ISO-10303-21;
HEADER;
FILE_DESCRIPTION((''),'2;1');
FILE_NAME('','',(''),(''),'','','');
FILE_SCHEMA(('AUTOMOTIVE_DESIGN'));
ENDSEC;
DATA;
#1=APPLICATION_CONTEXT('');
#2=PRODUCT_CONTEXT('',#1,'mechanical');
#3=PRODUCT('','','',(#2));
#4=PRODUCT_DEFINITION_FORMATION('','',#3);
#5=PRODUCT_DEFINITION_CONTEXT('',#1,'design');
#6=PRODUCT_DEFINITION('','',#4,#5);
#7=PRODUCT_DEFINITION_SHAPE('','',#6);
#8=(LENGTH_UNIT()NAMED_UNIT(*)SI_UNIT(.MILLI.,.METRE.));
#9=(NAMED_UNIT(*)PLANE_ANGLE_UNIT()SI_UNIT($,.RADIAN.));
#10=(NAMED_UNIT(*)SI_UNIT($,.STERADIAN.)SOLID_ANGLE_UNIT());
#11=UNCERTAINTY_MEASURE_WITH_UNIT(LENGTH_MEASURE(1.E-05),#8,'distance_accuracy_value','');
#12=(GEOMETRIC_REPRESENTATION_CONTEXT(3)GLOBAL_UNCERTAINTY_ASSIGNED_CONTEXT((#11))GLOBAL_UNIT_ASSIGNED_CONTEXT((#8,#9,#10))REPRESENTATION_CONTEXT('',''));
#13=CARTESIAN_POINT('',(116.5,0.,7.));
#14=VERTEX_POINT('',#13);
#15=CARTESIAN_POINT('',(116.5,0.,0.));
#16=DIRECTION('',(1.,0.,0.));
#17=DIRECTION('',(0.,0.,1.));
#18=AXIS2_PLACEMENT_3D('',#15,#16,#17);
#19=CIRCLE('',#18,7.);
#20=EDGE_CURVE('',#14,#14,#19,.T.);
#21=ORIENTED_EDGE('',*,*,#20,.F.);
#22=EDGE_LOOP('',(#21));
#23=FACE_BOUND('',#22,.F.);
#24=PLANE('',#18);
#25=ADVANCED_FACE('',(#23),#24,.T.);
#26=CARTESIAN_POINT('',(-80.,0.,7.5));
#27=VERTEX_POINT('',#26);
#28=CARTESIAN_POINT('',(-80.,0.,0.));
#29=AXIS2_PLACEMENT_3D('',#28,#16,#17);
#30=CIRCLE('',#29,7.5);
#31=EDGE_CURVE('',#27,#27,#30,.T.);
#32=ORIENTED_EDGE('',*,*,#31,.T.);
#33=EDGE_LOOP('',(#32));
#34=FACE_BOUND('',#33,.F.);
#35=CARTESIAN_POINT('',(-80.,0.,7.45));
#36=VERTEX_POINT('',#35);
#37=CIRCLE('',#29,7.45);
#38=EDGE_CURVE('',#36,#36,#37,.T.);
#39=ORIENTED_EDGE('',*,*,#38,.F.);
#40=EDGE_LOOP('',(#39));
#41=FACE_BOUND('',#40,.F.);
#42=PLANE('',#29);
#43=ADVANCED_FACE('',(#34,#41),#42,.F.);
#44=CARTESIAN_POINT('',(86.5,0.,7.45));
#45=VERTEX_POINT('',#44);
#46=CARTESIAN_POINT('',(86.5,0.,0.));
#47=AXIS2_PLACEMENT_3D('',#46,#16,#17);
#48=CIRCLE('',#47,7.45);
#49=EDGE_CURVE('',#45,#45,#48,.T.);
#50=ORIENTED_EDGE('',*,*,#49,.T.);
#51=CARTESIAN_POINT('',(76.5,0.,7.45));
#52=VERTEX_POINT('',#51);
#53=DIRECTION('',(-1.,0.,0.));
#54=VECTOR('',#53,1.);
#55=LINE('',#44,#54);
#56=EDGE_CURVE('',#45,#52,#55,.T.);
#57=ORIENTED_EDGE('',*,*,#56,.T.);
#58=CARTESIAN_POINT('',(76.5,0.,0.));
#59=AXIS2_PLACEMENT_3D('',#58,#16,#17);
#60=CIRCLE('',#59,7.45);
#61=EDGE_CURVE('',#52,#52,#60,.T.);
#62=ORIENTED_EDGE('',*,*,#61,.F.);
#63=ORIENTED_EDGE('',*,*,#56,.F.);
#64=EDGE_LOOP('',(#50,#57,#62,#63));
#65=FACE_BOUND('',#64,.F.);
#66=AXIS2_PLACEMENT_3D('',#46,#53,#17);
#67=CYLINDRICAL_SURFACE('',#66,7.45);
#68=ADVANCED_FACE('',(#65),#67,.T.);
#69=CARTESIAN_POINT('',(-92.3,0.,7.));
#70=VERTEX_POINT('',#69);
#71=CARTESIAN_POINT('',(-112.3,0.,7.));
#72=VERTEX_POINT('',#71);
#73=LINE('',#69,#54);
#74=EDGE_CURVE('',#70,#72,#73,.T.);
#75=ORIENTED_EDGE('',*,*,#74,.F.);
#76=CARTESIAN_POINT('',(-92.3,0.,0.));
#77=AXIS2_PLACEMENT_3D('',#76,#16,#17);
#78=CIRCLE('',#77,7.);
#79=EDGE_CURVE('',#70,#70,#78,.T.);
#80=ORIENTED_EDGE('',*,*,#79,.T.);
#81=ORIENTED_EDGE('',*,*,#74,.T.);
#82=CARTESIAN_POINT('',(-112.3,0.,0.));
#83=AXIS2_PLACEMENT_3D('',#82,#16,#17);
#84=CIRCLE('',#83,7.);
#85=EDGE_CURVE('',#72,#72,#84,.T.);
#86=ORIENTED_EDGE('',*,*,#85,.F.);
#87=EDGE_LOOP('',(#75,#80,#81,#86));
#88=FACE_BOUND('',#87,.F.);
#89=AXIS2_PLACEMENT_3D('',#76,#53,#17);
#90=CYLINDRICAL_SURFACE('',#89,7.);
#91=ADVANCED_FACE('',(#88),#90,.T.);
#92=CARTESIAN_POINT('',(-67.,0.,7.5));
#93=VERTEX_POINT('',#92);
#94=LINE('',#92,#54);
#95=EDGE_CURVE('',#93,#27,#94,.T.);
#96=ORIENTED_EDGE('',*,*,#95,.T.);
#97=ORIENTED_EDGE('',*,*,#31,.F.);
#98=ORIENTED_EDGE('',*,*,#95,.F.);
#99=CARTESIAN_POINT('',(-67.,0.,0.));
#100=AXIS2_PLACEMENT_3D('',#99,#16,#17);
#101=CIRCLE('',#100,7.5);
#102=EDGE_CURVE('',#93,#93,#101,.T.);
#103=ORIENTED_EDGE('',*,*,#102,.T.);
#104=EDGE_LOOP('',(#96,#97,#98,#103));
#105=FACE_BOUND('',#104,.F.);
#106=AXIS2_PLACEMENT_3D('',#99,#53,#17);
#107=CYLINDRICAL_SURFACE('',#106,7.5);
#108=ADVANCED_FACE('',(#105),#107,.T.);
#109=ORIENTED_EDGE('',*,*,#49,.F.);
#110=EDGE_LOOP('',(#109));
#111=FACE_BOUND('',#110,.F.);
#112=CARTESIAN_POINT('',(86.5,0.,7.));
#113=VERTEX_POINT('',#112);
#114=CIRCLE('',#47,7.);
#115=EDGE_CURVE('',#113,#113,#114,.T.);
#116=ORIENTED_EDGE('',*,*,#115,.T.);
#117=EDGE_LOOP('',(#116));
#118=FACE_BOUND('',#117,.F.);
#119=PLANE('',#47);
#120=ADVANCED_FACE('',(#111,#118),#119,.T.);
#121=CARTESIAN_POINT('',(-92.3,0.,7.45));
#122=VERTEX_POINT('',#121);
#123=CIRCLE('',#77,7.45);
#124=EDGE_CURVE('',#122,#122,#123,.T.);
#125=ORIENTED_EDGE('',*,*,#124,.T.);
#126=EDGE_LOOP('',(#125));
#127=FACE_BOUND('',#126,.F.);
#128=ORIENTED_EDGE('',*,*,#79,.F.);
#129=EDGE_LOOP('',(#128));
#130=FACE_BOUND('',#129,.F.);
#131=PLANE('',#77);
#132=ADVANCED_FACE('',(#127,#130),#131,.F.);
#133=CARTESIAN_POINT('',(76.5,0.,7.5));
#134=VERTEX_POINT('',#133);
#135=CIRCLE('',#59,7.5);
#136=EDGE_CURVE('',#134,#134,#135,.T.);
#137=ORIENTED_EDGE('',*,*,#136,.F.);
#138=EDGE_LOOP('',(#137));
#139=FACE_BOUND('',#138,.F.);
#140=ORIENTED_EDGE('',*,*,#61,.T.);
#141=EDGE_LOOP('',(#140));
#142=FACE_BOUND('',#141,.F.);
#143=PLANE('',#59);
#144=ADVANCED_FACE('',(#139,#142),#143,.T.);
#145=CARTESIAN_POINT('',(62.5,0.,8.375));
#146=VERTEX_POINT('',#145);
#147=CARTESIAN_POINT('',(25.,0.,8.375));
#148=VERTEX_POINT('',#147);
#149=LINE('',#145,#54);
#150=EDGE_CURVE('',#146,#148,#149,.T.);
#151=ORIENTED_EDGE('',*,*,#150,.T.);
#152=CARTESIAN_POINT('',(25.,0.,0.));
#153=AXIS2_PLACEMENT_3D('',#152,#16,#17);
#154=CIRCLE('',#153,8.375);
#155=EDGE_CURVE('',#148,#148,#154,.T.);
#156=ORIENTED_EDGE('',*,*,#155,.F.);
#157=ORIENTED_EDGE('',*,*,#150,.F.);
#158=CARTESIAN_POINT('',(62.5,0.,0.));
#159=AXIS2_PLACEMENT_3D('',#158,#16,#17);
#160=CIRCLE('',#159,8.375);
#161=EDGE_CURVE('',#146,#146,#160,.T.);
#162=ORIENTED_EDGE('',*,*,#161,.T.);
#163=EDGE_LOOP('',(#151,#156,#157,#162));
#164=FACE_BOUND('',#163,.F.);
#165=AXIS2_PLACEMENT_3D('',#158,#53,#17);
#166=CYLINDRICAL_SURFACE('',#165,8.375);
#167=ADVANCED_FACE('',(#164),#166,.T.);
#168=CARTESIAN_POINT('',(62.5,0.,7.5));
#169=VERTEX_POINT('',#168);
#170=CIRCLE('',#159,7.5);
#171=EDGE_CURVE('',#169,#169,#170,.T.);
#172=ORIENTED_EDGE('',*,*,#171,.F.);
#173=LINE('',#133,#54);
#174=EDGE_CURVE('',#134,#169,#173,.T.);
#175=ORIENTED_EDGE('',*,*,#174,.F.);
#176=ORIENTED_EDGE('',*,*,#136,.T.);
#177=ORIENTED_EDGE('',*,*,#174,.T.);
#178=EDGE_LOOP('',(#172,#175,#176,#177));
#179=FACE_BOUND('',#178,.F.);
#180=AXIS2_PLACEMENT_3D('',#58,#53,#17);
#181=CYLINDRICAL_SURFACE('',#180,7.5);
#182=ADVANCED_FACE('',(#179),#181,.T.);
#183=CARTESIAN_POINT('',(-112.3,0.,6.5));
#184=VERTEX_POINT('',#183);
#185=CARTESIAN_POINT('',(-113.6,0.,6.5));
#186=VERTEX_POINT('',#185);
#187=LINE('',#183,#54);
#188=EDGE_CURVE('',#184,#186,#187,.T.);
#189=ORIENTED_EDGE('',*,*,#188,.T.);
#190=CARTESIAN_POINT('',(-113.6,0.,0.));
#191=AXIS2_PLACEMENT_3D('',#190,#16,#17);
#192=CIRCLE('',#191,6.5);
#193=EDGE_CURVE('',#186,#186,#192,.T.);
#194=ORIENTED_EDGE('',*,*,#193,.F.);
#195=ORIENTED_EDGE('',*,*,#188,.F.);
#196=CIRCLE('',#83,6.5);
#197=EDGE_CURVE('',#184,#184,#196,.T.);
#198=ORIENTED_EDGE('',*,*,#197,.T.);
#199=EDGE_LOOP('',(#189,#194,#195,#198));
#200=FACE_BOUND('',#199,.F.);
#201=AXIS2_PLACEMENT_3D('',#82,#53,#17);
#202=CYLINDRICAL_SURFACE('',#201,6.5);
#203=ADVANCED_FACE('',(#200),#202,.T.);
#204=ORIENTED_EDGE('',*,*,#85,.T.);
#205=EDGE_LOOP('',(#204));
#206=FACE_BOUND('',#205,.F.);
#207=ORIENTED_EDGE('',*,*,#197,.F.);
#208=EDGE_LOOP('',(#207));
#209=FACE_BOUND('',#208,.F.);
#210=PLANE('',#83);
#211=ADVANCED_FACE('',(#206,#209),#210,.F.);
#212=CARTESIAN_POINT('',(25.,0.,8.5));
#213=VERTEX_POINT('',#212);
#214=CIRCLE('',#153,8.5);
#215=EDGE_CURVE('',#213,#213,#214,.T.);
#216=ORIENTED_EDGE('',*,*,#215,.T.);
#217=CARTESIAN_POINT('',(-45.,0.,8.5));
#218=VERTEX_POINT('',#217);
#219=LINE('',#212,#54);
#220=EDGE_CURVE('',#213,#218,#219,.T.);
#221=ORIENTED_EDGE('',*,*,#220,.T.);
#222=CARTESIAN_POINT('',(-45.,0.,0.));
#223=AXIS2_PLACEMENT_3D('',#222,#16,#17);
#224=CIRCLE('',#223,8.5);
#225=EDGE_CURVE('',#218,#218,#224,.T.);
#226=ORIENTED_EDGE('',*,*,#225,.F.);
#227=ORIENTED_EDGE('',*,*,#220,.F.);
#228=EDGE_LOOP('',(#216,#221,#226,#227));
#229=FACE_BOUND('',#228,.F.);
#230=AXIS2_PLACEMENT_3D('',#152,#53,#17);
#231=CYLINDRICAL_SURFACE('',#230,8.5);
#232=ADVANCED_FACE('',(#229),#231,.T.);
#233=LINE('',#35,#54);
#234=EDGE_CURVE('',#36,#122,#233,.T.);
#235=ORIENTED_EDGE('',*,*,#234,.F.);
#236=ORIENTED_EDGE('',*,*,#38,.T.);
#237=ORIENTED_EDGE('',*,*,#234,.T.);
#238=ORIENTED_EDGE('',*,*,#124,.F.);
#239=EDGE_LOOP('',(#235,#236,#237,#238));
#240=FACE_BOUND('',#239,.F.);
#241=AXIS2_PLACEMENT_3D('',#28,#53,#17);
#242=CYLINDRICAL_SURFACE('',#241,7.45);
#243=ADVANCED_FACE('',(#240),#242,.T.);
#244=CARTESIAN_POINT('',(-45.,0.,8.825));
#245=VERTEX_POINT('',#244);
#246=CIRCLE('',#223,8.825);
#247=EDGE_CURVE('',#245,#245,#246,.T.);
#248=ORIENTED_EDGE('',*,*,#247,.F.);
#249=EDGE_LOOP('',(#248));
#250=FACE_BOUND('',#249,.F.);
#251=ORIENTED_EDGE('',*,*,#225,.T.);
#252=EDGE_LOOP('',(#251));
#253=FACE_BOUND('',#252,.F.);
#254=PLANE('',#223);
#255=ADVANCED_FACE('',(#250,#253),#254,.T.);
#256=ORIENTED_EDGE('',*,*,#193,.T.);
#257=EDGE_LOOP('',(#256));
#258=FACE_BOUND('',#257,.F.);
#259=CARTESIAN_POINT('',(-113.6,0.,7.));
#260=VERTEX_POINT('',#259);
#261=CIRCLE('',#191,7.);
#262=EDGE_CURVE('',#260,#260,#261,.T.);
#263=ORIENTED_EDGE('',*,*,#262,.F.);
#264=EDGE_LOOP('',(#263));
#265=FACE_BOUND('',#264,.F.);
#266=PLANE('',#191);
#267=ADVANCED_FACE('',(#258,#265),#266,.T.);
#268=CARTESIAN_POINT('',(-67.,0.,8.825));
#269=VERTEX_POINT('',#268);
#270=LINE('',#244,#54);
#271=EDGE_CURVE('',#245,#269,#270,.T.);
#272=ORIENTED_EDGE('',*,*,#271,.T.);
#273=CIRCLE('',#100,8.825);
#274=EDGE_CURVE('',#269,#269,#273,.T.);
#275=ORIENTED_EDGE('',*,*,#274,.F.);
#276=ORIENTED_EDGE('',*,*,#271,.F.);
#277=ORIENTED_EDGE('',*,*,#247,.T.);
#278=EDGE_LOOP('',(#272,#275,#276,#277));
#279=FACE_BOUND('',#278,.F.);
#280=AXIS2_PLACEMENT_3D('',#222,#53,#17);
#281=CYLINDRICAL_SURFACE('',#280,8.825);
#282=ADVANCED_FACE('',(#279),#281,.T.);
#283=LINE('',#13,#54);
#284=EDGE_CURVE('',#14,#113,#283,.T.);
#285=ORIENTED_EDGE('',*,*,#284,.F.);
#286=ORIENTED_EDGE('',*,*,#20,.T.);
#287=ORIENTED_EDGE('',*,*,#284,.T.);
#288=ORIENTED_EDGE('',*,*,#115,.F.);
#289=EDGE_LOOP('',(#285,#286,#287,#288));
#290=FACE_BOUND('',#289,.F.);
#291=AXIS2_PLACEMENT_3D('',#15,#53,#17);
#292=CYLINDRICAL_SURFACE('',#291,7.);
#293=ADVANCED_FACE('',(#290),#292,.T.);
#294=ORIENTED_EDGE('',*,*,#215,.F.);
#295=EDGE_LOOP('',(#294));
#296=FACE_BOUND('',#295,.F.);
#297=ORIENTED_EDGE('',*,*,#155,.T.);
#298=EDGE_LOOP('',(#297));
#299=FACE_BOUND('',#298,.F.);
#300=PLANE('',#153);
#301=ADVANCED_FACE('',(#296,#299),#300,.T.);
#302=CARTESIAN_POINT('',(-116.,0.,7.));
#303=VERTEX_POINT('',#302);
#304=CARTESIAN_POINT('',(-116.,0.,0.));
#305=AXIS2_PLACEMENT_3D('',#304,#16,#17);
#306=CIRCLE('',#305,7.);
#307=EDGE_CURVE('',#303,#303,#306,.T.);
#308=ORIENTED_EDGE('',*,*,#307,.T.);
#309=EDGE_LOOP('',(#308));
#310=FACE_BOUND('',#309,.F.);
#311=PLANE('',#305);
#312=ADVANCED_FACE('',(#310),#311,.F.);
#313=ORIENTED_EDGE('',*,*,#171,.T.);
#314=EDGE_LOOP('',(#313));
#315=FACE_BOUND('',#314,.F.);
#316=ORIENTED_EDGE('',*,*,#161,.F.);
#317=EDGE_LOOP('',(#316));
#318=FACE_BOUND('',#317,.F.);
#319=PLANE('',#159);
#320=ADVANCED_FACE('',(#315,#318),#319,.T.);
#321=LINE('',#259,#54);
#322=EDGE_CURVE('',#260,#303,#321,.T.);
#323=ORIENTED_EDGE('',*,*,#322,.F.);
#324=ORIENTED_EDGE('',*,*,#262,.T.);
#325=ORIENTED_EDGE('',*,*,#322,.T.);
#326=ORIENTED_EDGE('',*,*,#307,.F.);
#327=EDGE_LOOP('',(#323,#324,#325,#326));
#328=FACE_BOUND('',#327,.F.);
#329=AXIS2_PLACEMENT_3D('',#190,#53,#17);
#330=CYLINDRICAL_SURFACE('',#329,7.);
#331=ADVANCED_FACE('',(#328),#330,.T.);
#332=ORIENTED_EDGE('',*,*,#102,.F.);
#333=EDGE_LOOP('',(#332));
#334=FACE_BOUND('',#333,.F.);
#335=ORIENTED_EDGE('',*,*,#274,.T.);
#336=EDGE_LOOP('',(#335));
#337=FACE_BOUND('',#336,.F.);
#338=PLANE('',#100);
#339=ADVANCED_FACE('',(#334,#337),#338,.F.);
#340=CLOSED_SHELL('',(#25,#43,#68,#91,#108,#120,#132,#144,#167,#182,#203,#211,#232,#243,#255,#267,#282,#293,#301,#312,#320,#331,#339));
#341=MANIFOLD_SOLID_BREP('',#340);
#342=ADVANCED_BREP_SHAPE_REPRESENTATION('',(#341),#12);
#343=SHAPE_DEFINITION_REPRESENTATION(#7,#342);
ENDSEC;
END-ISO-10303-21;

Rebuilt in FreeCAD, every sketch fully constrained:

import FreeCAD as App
import Part
import Sketcher

V = App.Vector

doc = App.newDocument("Part")
params = doc.addObject("Spreadsheet::Sheet", "Params")
for row, (alias, value) in enumerate([
    ("sketch1_width", "30 mm"),
    ("sketch1_width2", "10 mm"),
    ("sketch1_width3", "14 mm"),
    ("sketch1_width4", "70 mm"),
    ("sketch1_width5", "22 mm"),
    ("revolution_angle", "360 deg"),
], start=1):
    params.set(f"A{row}", alias)
    params.set(f"B{row}", "=" + value)
    params.setAlias(f"B{row}", alias)

body = doc.addObject("PartDesign::Body", "Body")

# Sketch on XZ plane
sketch1 = body.newObject("Sketcher::SketchObject", "Sketch")
sketch1.AttachmentSupport = (doc.getObject("XZ_Plane"), [""])
sketch1.MapMode = "FlatFace"
sketch1.addGeometry([
    Part.LineSegment(V(-116, 7, 0), V(-116, 0, 0)),  # 0
    Part.LineSegment(V(-116, 0, 0), V(116.5, 0, 0)),  # 1
    Part.LineSegment(V(116.5, 0, 0), V(116.5, 7, 0)),  # 2
    Part.LineSegment(V(116.5, 7, 0), V(86.5, 7, 0)),  # 3
    Part.LineSegment(V(86.5, 7, 0), V(86.5, 7.45, 0)),  # 4
    Part.LineSegment(V(86.5, 7.45, 0), V(76.5, 7.45, 0)),  # 5
    Part.LineSegment(V(76.5, 7.45, 0), V(76.5, 7.5, 0)),  # 6
    Part.LineSegment(V(76.5, 7.5, 0), V(62.5, 7.5, 0)),  # 7
    Part.LineSegment(V(62.5, 7.5, 0), V(62.5, 8.375, 0)),  # 8
    Part.LineSegment(V(62.5, 8.375, 0), V(25, 8.375, 0)),  # 9
    Part.LineSegment(V(25, 8.375, 0), V(25, 8.5, 0)),  # 10
    Part.LineSegment(V(25, 8.5, 0), V(-45, 8.5, 0)),  # 11
    Part.LineSegment(V(-45, 8.5, 0), V(-45, 8.825, 0)),  # 12
    Part.LineSegment(V(-45, 8.825, 0), V(-67, 8.825, 0)),  # 13
    Part.LineSegment(V(-67, 8.825, 0), V(-67, 7.5, 0)),  # 14
    Part.LineSegment(V(-67, 7.5, 0), V(-80, 7.5, 0)),  # 15
    Part.LineSegment(V(-80, 7.5, 0), V(-80, 7.45, 0)),  # 16
    Part.LineSegment(V(-80, 7.45, 0), V(-92.3, 7.45, 0)),  # 17
    Part.LineSegment(V(-92.3, 7.45, 0), V(-92.3, 7, 0)),  # 18
    Part.LineSegment(V(-92.3, 7, 0), V(-112.3, 7, 0)),  # 19
    Part.LineSegment(V(-112.3, 7, 0), V(-112.3, 6.5, 0)),  # 20
    Part.LineSegment(V(-112.3, 6.5, 0), V(-113.6, 6.5, 0)),  # 21
    Part.LineSegment(V(-113.6, 6.5, 0), V(-113.6, 7, 0)),  # 22
    Part.LineSegment(V(-113.6, 7, 0), V(-116, 7, 0)),  # 23
], False)
sketch1.addConstraint([
    Sketcher.Constraint("Coincident", 0, 2, 1, 1),
    Sketcher.Constraint("Coincident", 1, 2, 2, 1),
    Sketcher.Constraint("Coincident", 2, 2, 3, 1),
    Sketcher.Constraint("Coincident", 3, 2, 4, 1),
    Sketcher.Constraint("Coincident", 4, 2, 5, 1),
    Sketcher.Constraint("Coincident", 5, 2, 6, 1),
    Sketcher.Constraint("Coincident", 6, 2, 7, 1),
    Sketcher.Constraint("Coincident", 7, 2, 8, 1),
    Sketcher.Constraint("Coincident", 8, 2, 9, 1),
    Sketcher.Constraint("Coincident", 9, 2, 10, 1),
    Sketcher.Constraint("Coincident", 10, 2, 11, 1),
    Sketcher.Constraint("Coincident", 11, 2, 12, 1),
    Sketcher.Constraint("Coincident", 12, 2, 13, 1),
    Sketcher.Constraint("Coincident", 13, 2, 14, 1),
    Sketcher.Constraint("Coincident", 14, 2, 15, 1),
    Sketcher.Constraint("Coincident", 15, 2, 16, 1),
    Sketcher.Constraint("Coincident", 16, 2, 17, 1),
    Sketcher.Constraint("Coincident", 17, 2, 18, 1),
    Sketcher.Constraint("Coincident", 18, 2, 19, 1),
    Sketcher.Constraint("Coincident", 19, 2, 20, 1),
    Sketcher.Constraint("Coincident", 20, 2, 21, 1),
    Sketcher.Constraint("Coincident", 21, 2, 22, 1),
    Sketcher.Constraint("Coincident", 22, 2, 23, 1),
    Sketcher.Constraint("Coincident", 23, 2, 0, 1),
    Sketcher.Constraint("Vertical", 0),
    Sketcher.Constraint("Horizontal", 1),
    Sketcher.Constraint("Vertical", 2),
    Sketcher.Constraint("Horizontal", 3),
    Sketcher.Constraint("Vertical", 4),
    Sketcher.Constraint("Horizontal", 5),
    Sketcher.Constraint("Vertical", 6),
    Sketcher.Constraint("Horizontal", 7),
    Sketcher.Constraint("Vertical", 8),
    Sketcher.Constraint("Horizontal", 9),
    Sketcher.Constraint("Vertical", 10),
    Sketcher.Constraint("Horizontal", 11),
    Sketcher.Constraint("Vertical", 12),
    Sketcher.Constraint("Horizontal", 13),
    Sketcher.Constraint("Vertical", 14),
    Sketcher.Constraint("Horizontal", 15),
    Sketcher.Constraint("Vertical", 16),
    Sketcher.Constraint("Horizontal", 17),
    Sketcher.Constraint("Vertical", 18),
    Sketcher.Constraint("Horizontal", 19),
    Sketcher.Constraint("Vertical", 20),
    Sketcher.Constraint("Horizontal", 21),
    Sketcher.Constraint("Vertical", 22),
    Sketcher.Constraint("Horizontal", 23),
    Sketcher.Constraint("PointOnObject", 0, 2, -1),
    Sketcher.Constraint("Horizontal", 7, 2, 14, 2),
    Sketcher.Constraint("Horizontal", 5, 2, 16, 2),
    Sketcher.Constraint("Horizontal", 3, 2, 18, 2),
    Sketcher.Constraint("Horizontal", 19, 2, 22, 2),
    Sketcher.Constraint("DistanceX", 3, 2, 3, 1, 30.0),
    Sketcher.Constraint("DistanceX", 5, 2, 5, 1, 10.0),
    Sketcher.Constraint("DistanceX", 7, 2, 7, 1, 14.0),
    Sketcher.Constraint("DistanceX", 11, 2, 11, 1, 70.0),
    Sketcher.Constraint("DistanceX", 13, 2, 13, 1, 22.0),
    Sketcher.Constraint("DistanceX", 15, 2, 15, 1, 13.0),
    Sketcher.Constraint("DistanceX", 19, 2, 19, 1, 20.0),
    Sketcher.Constraint("DistanceY", 0, 2, 0, 1, 7.0),
    Sketcher.Constraint("DistanceX", 1, 1, 1, 2, 232.5),
    Sketcher.Constraint("DistanceX", 9, 2, 9, 1, 37.5),
    Sketcher.Constraint("DistanceX", 17, 2, 17, 1, 12.3),
    Sketcher.Constraint("DistanceX", 21, 2, 21, 1, 1.3),
    Sketcher.Constraint("DistanceY", 20, 2, 20, 1, 0.5),
    Sketcher.Constraint("DistanceX", 0, 2, -1, 1, 116.0),
    Sketcher.Constraint("DistanceY", 7, 2, 10, 2, 1.0),
    Sketcher.Constraint("DistanceY", 4, 1, 4, 2, 0.45),
    Sketcher.Constraint("DistanceY", 6, 1, 6, 2, 0.05),
    Sketcher.Constraint("DistanceY", 8, 1, 8, 2, 0.875),
    Sketcher.Constraint("DistanceY", 12, 1, 12, 2, 0.325),
])
sketch1.setExpression("Constraints[53]", "Params.sketch1_width")
sketch1.setExpression("Constraints[54]", "Params.sketch1_width2")
sketch1.setExpression("Constraints[55]", "Params.sketch1_width3")
sketch1.setExpression("Constraints[56]", "Params.sketch1_width4")
sketch1.setExpression("Constraints[57]", "Params.sketch1_width5")
revolution = body.newObject("PartDesign::Revolution", "Revolution")
revolution.Profile = sketch1
revolution.ReferenceAxis = (sketch1, ["H_Axis"])
revolution.setExpression("Angle", "Params.revolution_angle")

doc.recompute()
